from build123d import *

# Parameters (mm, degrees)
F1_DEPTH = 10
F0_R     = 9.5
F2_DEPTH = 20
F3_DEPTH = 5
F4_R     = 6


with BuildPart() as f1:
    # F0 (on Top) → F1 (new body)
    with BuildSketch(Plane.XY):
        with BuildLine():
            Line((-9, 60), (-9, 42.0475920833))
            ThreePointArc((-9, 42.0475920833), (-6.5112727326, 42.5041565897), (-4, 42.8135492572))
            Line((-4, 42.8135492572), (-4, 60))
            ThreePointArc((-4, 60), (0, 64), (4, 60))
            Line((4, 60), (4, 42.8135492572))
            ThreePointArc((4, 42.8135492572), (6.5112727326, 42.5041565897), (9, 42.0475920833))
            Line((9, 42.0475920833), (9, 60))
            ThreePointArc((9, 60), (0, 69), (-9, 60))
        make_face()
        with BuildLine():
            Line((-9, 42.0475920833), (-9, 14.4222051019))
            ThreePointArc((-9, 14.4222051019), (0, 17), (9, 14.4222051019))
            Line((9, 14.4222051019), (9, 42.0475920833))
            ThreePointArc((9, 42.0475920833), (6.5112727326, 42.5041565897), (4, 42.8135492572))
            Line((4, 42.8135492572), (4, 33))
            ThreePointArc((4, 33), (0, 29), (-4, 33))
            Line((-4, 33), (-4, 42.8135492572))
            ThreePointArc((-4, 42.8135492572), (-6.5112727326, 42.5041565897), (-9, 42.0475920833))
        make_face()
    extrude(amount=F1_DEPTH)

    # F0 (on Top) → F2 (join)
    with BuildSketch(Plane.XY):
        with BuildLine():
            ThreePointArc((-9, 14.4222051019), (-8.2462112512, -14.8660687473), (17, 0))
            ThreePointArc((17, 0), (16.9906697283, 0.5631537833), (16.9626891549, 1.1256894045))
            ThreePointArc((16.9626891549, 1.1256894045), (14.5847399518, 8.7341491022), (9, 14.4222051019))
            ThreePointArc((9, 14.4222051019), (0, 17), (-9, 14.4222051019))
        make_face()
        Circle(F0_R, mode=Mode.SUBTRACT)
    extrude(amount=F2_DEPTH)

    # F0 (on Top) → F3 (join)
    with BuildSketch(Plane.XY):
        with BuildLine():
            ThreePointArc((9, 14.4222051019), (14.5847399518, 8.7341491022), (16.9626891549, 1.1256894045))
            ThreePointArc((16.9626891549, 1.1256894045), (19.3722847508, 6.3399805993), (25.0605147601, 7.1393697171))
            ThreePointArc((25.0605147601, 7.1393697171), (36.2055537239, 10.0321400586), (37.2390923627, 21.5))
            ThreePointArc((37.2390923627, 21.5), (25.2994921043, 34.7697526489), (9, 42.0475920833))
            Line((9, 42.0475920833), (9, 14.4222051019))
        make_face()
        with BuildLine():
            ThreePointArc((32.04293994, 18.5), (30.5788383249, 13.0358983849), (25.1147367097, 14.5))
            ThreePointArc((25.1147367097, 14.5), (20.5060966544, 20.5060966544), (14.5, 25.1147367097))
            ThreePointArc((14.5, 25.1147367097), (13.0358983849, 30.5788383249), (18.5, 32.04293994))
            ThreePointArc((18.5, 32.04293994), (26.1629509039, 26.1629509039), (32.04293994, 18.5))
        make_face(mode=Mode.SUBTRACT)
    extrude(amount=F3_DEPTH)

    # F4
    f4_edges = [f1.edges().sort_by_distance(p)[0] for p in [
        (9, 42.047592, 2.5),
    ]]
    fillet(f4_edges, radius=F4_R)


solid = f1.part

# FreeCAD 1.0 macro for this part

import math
import FreeCAD as App
import Part
import Sketcher


def edges_at(feature, points):
    """Names of the edges that pass closest to the given points."""
    edges = feature.Shape.Edges
    near = lambda p: min(range(len(edges)), key=lambda i: edges[i].distToShape(Part.Vertex(*p))[0])
    return sorted({f"Edge{near(p) + 1}" for p in points})

doc = App.newDocument("Part")
params = doc.addObject("Spreadsheet::Sheet", "Params")
for row, (alias, value) in enumerate([
    ("sketch1_radius", "17 mm"),
    ("sketch1_radius2", "9 mm"),
    ("sketch1_radius3", "4 mm"),
    ("sketch1_height", "27 mm"),
    ("pad1_length", "10 mm"),
    ("sketch2_diameter", "19 mm"),
    ("sketch2_radius", "17 mm"),
    ("pad2_length", "20 mm"),
    ("sketch3_radius", "17 mm"),
    ("sketch3_radius2", "6 mm"),
    ("sketch3_radius3", "10 mm"),
    ("sketch3_radius4", "43 mm"),
    ("sketch3_radius5", "37 mm"),
    ("pad3_length", "5 mm"),
    ("fillet_radius", "6 mm"),
], start=1):
    params.set(f"A{row}", alias)
    params.set(f"B{row}", "=" + value)
    params.setAlias(f"B{row}", alias)

body = doc.addObject("PartDesign::Body", "Body")

# Sketch on XY plane
sketch1 = body.newObject("Sketcher::SketchObject", "Sketch")
sketch1.AttachmentSupport = (doc.getObject("XY_Plane"), [""])
sketch1.MapMode = "FlatFace"
sketch1.addGeometry([
    Part.LineSegment(App.Vector(-9, 60, 0), App.Vector(-9, 14.422205, 0)),  # 0
    Part.ArcOfCircle(Part.Circle(App.Vector(0, 0, 0), App.Vector(0, 0, 1), 17), math.radians(58.034281), math.radians(121.965719)),  # 1
    Part.LineSegment(App.Vector(9, 14.422205, 0), App.Vector(9, 60, 0)),  # 2
    Part.ArcOfCircle(Part.Circle(App.Vector(0, 60, 0), App.Vector(0, 0, 1), 9), math.radians(0), math.radians(180)),  # 3
    Part.ArcOfCircle(Part.Circle(App.Vector(0, 60, 0), App.Vector(0, 0, 1), 4), math.radians(0), math.radians(180)),  # 4
    Part.LineSegment(App.Vector(4, 60, 0), App.Vector(4, 33, 0)),  # 5
    Part.ArcOfCircle(Part.Circle(App.Vector(0, 33, 0), App.Vector(0, 0, 1), 4), math.radians(180), math.radians(360)),  # 6
    Part.LineSegment(App.Vector(-4, 33, 0), App.Vector(-4, 60, 0)),  # 7
], False)
sketch1.addConstraint([
    Sketcher.Constraint("Coincident", 0, 2, 1, 2),
    Sketcher.Constraint("Coincident", 1, 1, 2, 1),
    Sketcher.Constraint("Tangent", 2, 2, 3, 1),
    Sketcher.Constraint("Tangent", 3, 2, 0, 1),
    Sketcher.Constraint("Tangent", 4, 1, 5, 1),
    Sketcher.Constraint("Tangent", 5, 2, 6, 2),
    Sketcher.Constraint("Tangent", 6, 1, 7, 1),
    Sketcher.Constraint("Tangent", 7, 2, 4, 2),
    Sketcher.Constraint("Vertical", 0),
    Sketcher.Constraint("Vertical", 2),
    Sketcher.Constraint("Vertical", 5),
    Sketcher.Constraint("Vertical", 7),
    Sketcher.Constraint("Coincident", 1, 3, -1, 1),
    Sketcher.Constraint("Coincident", 4, 3, 3, 3),
    Sketcher.Constraint("PointOnObject", 3, 3, -2),
    Sketcher.Constraint("Radius", 1, 17.0),
    Sketcher.Constraint("Radius", 3, 9.0),
    Sketcher.Constraint("Radius", 4, 4.0),
    Sketcher.Constraint("DistanceY", 5, 2, 5, 1, 27.0),
    Sketcher.Constraint("DistanceY", -1, 1, 3, 3, 60.0),
])
sketch1.setExpression("Constraints[15]", "Params.sketch1_radius")
sketch1.setExpression("Constraints[16]", "Params.sketch1_radius2")
sketch1.setExpression("Constraints[17]", "Params.sketch1_radius3")
sketch1.setExpression("Constraints[18]", "Params.sketch1_height")
pad1 = body.newObject("PartDesign::Pad", "Pad")
pad1.Profile = sketch1
pad1.setExpression("Length", "Params.pad1_length")

# Sketch on XY plane
sketch2 = body.newObject("Sketcher::SketchObject", "Sketch001")
sketch2.AttachmentSupport = (doc.getObject("XY_Plane"), [""])
sketch2.MapMode = "FlatFace"
sketch2.addGeometry([
    Part.ArcOfCircle(Part.Circle(App.Vector(0, 0, 0), App.Vector(0, 0, 1), 17), math.radians(121.965719), math.radians(360)),  # 0
    Part.ArcOfCircle(Part.Circle(App.Vector(0, 0, 0), App.Vector(0, 0, 1), 17), math.radians(0), math.radians(3.796734)),  # 1
    Part.ArcOfCircle(Part.Circle(App.Vector(0, 0, 0), App.Vector(0, 0, 1), 17), math.radians(3.796734), math.radians(58.034281)),  # 2
    Part.ArcOfCircle(Part.Circle(App.Vector(0, 0, 0), App.Vector(0, 0, 1), 17), math.radians(58.034281), math.radians(121.965719)),  # 3
    Part.Circle(App.Vector(0, 0, 0), App.Vector(0, 0, 1), 9.5),  # 4
], False)
sketch2.addConstraint([
    Sketcher.Constraint("Tangent", 0, 2, 1, 1),
    Sketcher.Constraint("Tangent", 1, 2, 2, 1),
    Sketcher.Constraint("Tangent", 2, 2, 3, 1),
    Sketcher.Constraint("Tangent", 3, 2, 0, 1),
    Sketcher.Constraint("Coincident", 0, 3, -1, 1),
    Sketcher.Constraint("Coincident", 4, 3, -1, 1),
    Sketcher.Constraint("Equal", 0, 1),
    Sketcher.Constraint("PointOnObject", 0, 2, -1),
    Sketcher.Constraint("Horizontal", 2, 2, 3, 2),
    Sketcher.Constraint("Diameter", 4, 19.0),
    Sketcher.Constraint("Radius", 0, 17.0),
    Sketcher.Constraint("DistanceX", -1, 1, 2, 2, 9.0),
    Sketcher.Constraint("DistanceX", -1, 1, 1, 2, 16.962689),
])
sketch2.setExpression("Constraints[9]", "Params.sketch2_diameter")
sketch2.setExpression("Constraints[10]", "Params.sketch2_radius")
pad2 = body.newObject("PartDesign::Pad", "Pad001")
pad2.Profile = sketch2
pad2.setExpression("Length", "Params.pad2_length")

# Sketch on XY plane
sketch3 = body.newObject("Sketcher::SketchObject", "Sketch002")
sketch3.AttachmentSupport = (doc.getObject("XY_Plane"), [""])
sketch3.MapMode = "FlatFace"
sketch3.addGeometry([
    Part.ArcOfCircle(Part.Circle(App.Vector(0, 0, 0), App.Vector(0, 0, 1), 17), math.radians(3.796734), math.radians(58.034281)),  # 0
    Part.ArcOfCircle(Part.Circle(App.Vector(22.949521, 1.522992, 0), App.Vector(0, 0, 1), 6), math.radians(69.400569), math.radians(183.796734)),  # 1
    Part.ArcOfCircle(Part.Circle(App.Vector(28.578838, 16.5, 0), App.Vector(0, 0, 1), 10), math.radians(-110.599431), math.radians(30)),  # 2
    Part.ArcOfCircle(Part.Circle(App.Vector(0, 0, 0), App.Vector(0, 0, 1), 43), math.radians(30), math.radians(77.91853)),  # 3
    Part.LineSegment(App.Vector(9, 42.047592, 0), App.Vector(9, 14.422205, 0)),  # 4
    Part.ArcOfCircle(Part.Circle(App.Vector(0, 0, 0), App.Vector(0, 0, 1), 37), math.radians(30), math.radians(60)),  # 5
    Part.ArcOfCircle(Part.Circle(App.Vector(28.578838, 16.5, 0), App.Vector(0, 0, 1), 4), math.radians(-150), math.radians(30)),  # 6
    Part.ArcOfCircle(Part.Circle(App.Vector(0, 0, 0), App.Vector(0, 0, 1), 29), math.radians(30), math.radians(60)),  # 7
    Part.ArcOfCircle(Part.Circle(App.Vector(16.5, 28.578838, 0), App.Vector(0, 0, 1), 4), math.radians(60), math.radians(240)),  # 8
], False)
sketch3.addConstraint([
    Sketcher.Constraint("Tangent", 0, 1, 1, 2),
    Sketcher.Constraint("Tangent", 1, 1, 2, 1),
    Sketcher.Constraint("Tangent", 2, 2, 3, 1),
    Sketcher.Constraint("Coincident", 3, 2, 4, 1),
    Sketcher.Constraint("Coincident", 4, 2, 0, 2),
    Sketcher.Constraint("Tangent", 5, 1, 6, 2),
    Sketcher.Constraint("Tangent", 6, 1, 7, 1),
    Sketcher.Constraint("Tangent", 7, 2, 8, 2),
    Sketcher.Constraint("Tangent", 8, 1, 5, 2),
    Sketcher.Constraint("Vertical", 4),
    Sketcher.Constraint("Coincident", 0, 3, -1, 1),
    Sketcher.Constraint("Coincident", 3, 3, -1, 1),
    Sketcher.Constraint("Coincident", 5, 3, -1, 1),
    Sketcher.Constraint("Coincident", 7, 3, -1, 1),
    Sketcher.Constraint("Coincident", 6, 3, 2, 3),
    Sketcher.Constraint("Radius", 0, 17.0),
    Sketcher.Constraint("Radius", 1, 6.0),
    Sketcher.Constraint("Radius", 2, 10.0),
    Sketcher.Constraint("Radius", 3, 43.0),
    Sketcher.Constraint("Radius", 5, 37.0),
    Sketcher.Constraint("DistanceX", -1, 1, 3, 2, 9.0),
    Sketcher.Constraint("DistanceY", 2, 3, 2, 2, 5.0),
    Sketcher.Constraint("DistanceX", 7, 2, 8, 3, 2.0),
])
sketch3.setExpression("Constraints[15]", "Params.sketch3_radius")
sketch3.setExpression("Constraints[16]", "Params.sketch3_radius2")
sketch3.setExpression("Constraints[17]", "Params.sketch3_radius3")
sketch3.setExpression("Constraints[18]", "Params.sketch3_radius4")
sketch3.setExpression("Constraints[19]", "Params.sketch3_radius5")
pad3 = body.newObject("PartDesign::Pad", "Pad002")
pad3.Profile = sketch3
pad3.setExpression("Length", "Params.pad3_length")
doc.recompute()

fillet = body.newObject("PartDesign::Fillet", "Fillet")
fillet.Base = (pad3, edges_at(pad3, [(9, 42.048, 2.5)]))
fillet.setExpression("Radius", "Params.fillet_radius")

doc.recompute()
